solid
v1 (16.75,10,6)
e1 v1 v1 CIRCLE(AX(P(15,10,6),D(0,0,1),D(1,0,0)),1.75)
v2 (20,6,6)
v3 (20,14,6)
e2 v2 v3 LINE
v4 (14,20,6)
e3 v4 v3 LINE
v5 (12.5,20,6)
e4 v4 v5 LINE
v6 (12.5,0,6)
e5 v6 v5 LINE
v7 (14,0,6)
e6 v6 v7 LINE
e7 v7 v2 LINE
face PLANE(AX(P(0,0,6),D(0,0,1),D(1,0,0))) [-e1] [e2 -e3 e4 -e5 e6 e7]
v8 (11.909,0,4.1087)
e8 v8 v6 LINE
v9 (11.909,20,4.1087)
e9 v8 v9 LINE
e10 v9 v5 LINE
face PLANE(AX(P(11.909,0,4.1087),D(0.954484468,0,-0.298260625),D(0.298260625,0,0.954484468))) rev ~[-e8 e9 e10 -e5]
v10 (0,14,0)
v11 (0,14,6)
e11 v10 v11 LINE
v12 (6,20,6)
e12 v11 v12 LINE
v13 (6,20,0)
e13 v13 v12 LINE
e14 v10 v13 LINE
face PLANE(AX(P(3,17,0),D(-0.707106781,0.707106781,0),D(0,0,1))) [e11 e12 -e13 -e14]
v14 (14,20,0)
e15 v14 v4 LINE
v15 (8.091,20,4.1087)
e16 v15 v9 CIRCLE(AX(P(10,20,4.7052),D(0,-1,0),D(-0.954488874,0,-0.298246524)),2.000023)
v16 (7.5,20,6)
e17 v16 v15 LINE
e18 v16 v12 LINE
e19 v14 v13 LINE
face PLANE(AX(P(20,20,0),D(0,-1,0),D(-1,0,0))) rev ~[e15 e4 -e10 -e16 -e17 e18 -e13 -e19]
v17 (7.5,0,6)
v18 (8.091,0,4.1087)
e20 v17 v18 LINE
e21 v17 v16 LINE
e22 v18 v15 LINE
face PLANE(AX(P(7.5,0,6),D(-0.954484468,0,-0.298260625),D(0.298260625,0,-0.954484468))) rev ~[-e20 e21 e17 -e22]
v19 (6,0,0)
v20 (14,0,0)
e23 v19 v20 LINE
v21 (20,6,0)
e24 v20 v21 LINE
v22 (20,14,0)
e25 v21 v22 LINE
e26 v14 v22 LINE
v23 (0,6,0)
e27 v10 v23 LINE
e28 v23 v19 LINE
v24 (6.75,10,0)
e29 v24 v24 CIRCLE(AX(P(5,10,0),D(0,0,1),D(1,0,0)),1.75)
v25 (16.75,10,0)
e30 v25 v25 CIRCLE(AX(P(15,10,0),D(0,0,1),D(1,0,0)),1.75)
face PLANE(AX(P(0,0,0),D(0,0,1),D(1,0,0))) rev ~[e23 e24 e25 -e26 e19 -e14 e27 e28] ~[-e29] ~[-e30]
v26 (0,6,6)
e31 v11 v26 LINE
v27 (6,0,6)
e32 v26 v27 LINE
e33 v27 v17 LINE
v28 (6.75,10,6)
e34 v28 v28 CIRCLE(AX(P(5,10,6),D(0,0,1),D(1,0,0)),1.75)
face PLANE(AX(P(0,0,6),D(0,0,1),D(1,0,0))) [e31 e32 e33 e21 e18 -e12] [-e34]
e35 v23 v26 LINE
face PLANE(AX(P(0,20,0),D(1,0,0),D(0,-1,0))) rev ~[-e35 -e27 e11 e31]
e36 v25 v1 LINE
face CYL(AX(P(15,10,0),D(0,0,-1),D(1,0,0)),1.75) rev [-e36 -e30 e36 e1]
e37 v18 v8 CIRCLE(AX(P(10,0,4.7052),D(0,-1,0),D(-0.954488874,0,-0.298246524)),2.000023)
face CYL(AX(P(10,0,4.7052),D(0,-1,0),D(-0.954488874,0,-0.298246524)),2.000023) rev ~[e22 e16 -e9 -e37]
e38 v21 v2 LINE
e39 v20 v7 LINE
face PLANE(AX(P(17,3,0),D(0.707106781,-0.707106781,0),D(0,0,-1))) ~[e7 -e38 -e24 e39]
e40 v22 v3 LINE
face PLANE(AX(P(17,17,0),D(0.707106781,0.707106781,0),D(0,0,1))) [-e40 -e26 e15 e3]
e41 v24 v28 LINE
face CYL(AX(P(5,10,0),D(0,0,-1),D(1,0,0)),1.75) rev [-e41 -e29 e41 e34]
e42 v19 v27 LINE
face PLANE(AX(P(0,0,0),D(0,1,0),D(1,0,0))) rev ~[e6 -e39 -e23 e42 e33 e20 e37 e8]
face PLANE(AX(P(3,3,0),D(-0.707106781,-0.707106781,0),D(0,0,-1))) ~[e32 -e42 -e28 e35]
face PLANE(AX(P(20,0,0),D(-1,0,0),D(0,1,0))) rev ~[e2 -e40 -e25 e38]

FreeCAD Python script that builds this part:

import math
import FreeCAD as App
import Part
import Sketcher

V = App.Vector
Q = App.Units.Quantity


def edges_at(feature, points):
    """Names of the edges that pass closest to the given points."""
    edges = feature.Shape.Edges
    near = lambda p: min(range(len(edges)), key=lambda i: edges[i].distToShape(Part.Vertex(*p))[0])
    return sorted({f"Edge{near(p) + 1}" for p in points})

doc = App.newDocument("Part")
body = doc.addObject("PartDesign::Body", "Body")

# Sketch on XY plane
sketch1 = body.newObject("Sketcher::SketchObject", "Sketch")
sketch1.AttachmentSupport = (doc.getObject("XY_Plane"), [""])
sketch1.MapMode = "FlatFace"
sketch1.addGeometry(Part.LineSegment(V(0, 20, 0), V(0, 0, 0)), False)
sketch1.addGeometry(Part.LineSegment(V(0, 0, 0), V(20, 0, 0)), False)
sketch1.addGeometry(Part.LineSegment(V(20, 0, 0), V(20, 20, 0)), False)
sketch1.addGeometry(Part.LineSegment(V(20, 20, 0), V(0, 20, 0)), False)
sketch1.addGeometry(Part.Circle(V(5, 10, 0), V(0, 0, 1), 1.8), False)
sketch1.addGeometry(Part.Circle(V(15, 10, 0), V(0, 0, 1), 1.8), False)
sketch1.addConstraint(Sketcher.Constraint("Coincident", 0, 2, 1, 1))
sketch1.addConstraint(Sketcher.Constraint("Coincident", 1, 2, 2, 1))
sketch1.addConstraint(Sketcher.Constraint("Coincident", 2, 2, 3, 1))
sketch1.addConstraint(Sketcher.Constraint("Coincident", 3, 2, 0, 1))
sketch1.addConstraint(Sketcher.Constraint("Vertical", 0))
sketch1.addConstraint(Sketcher.Constraint("Horizontal", 1))
sketch1.addConstraint(Sketcher.Constraint("Vertical", 2))
sketch1.addConstraint(Sketcher.Constraint("Horizontal", 3))
sketch1.addConstraint(Sketcher.Constraint("Coincident", 0, 2, -1, 1))
sketch1.addConstraint(Sketcher.Constraint("Equal", 4, 5))
sketch1.addConstraint(Sketcher.Constraint("Horizontal", 4, 3, 5, 3))
sketch1.addConstraint(Sketcher.Constraint("Equal", 3, 0))
sketch1.addConstraint(Sketcher.Constraint("Diameter", 4, Q("3.5 mm")))
sketch1.addConstraint(Sketcher.Constraint("DistanceX", 1, 1, 1, 2, Q("20 mm")))
sketch1.addConstraint(Sketcher.Constraint("DistanceY", -1, 1, 4, 3, Q("10 mm")))
sketch1.addConstraint(Sketcher.Constraint("DistanceX", 4, 3, 5, 3, Q("10 mm")))
sketch1.addConstraint(Sketcher.Constraint("DistanceX", -1, 1, 4, 3, Q("5 mm")))
pad1 = body.newObject("PartDesign::Pad", "Pad")
pad1.Profile = sketch1
pad1.Length = 6

# Sketch on XZ plane
sketch2 = body.newObject("Sketcher::SketchObject", "Sketch001")
sketch2.AttachmentSupport = (doc.getObject("XZ_Plane"), [""])
sketch2.MapMode = "FlatFace"
sketch2.addGeometry(Part.LineSegment(V(12.5, 6, 0), V(7.5, 6, 0)), False)
sketch2.addGeometry(Part.LineSegment(V(7.5, 6, 0), V(8.1, 4.1, 0)), False)
sketch2.addGeometry(Part.ArcOfCircle(Part.Circle(V(10, 4.7, 0), V(0, 0, 1), 2), math.radians(-163), math.radians(-17)), False)
sketch2.addGeometry(Part.LineSegment(V(11.9, 4.1, 0), V(12.5, 6, 0)), False)
sketch2.addConstraint(Sketcher.Constraint("Coincident", 0, 2, 1, 1))
sketch2.addConstraint(Sketcher.Constraint("Tangent", 1, 2, 2, 1))
sketch2.addConstraint(Sketcher.Constraint("Tangent", 2, 2, 3, 1))
sketch2.addConstraint(Sketcher.Constraint("Coincident", 3, 2, 0, 1))
sketch2.addConstraint(Sketcher.Constraint("Horizontal", 0))
sketch2.addConstraint(Sketcher.Constraint("Horizontal", 1, 2, 2, 2))
sketch2.addConstraint(Sketcher.Constraint("Radius", 2, Q("2 mm")))
sketch2.addConstraint(Sketcher.Constraint("DistanceX", 0, 2, 0, 1, Q("5 mm")))
sketch2.addConstraint(Sketcher.Constraint("DistanceX", -1, 1, 2, 3, Q("10 mm")))
sketch2.addConstraint(Sketcher.Constraint("DistanceY", -1, 1, 0, 2, Q("6 mm")))
sketch2.addConstraint(Sketcher.Constraint("DistanceX", -1, 1, 1, 2, Q("8.091 mm")))
pocket1 = body.newObject("PartDesign::Pocket", "Pocket")
pocket1.Profile = sketch2
pocket1.Type = "ThroughAll"
doc.recompute()

chamfer = body.newObject("PartDesign::Chamfer", "Chamfer")
chamfer.Base = (pocket1, edges_at(pocket1, [
    (20, 20, 3),
    (0, 20, 3),
    (20, 0, 3),
    (0, 0, 3),
]))
chamfer.Size = 6

doc.recompute()
